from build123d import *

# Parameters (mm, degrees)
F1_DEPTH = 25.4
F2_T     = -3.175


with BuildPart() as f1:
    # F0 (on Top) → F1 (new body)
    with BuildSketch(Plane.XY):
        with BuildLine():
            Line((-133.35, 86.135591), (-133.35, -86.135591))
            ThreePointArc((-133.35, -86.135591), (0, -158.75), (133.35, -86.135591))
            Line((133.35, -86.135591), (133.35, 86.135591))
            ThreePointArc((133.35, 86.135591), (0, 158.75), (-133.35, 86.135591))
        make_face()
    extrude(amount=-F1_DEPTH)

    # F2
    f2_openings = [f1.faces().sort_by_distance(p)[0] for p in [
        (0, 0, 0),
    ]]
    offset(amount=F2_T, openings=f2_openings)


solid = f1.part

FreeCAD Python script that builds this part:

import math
import FreeCAD as App
import Part
import Sketcher
from FreeCAD import Vector
Q = App.Units.Quantity


def faces_at(feature, points):
    """Names of the faces that lie closest to the given points."""
    faces = feature.Shape.Faces
    near = lambda p: min(range(len(faces)), key=lambda i: faces[i].distToShape(Part.Vertex(*p))[0])
    return sorted({f"Face{near(p) + 1}" for p in points})

doc = App.newDocument("Part")
body = doc.addObject("PartDesign::Body", "Body")

# Sketch on XY plane
sketch1 = doc.addObject("Sketcher::SketchObject", "Sketch")
body.addObject(sketch1)
sketch1.AttachmentSupport = (doc.XY_Plane, [""])
sketch1.MapMode = "FlatFace"
sketch1.addGeometry(Part.LineSegment(Vector(-133.35, 86.135591, 0), Vector(-133.35, -86.135591, 0)), False)
sketch1.addGeometry(Part.ArcOfCircle(Part.Circle(Vector(0, 0, 0), Vector(0, 0, 1), 158.75), math.radians(-147.140119), math.radians(-32.859881)), False)
sketch1.addGeometry(Part.LineSegment(Vector(133.35, -86.135591, 0), Vector(133.35, 86.135591, 0)), False)
sketch1.addGeometry(Part.ArcOfCircle(Part.Circle(Vector(0, 0, 0), Vector(0, 0, 1), 158.75), math.radians(32.859881), math.radians(147.140119)), False)
sketch1.addConstraint(Sketcher.Constraint("Coincident", 0, 2, 1, 1))
sketch1.addConstraint(Sketcher.Constraint("Coincident", 1, 2, 2, 1))
sketch1.addConstraint(Sketcher.Constraint("Coincident", 2, 2, 3, 1))
sketch1.addConstraint(Sketcher.Constraint("Coincident", 3, 2, 0, 1))
sketch1.addConstraint(Sketcher.Constraint("Vertical", 0))
sketch1.addConstraint(Sketcher.Constraint("Vertical", 2))
sketch1.addConstraint(Sketcher.Constraint("Coincident", 1, 3, -1, 1))
sketch1.addConstraint(Sketcher.Constraint("Coincident", 3, 3, -1, 1))
sketch1.addConstraint(Sketcher.Constraint("Equal", 1, 3))
sketch1.addConstraint(Sketcher.Constraint("Horizontal", 0, 2, 1, 2))
sketch1.addConstraint(Sketcher.Constraint("Radius", 1, Q("6.25 in")))
sketch1.addConstraint(Sketcher.Constraint("DistanceX", 0, 2, 1, 2, Q("10.5 in")))
pad1 = doc.addObject("PartDesign::Pad", "Pad")
body.addObject(pad1)
pad1.Profile = sketch1
pad1.Length = Q("1 in")
pad1.Reversed = True
doc.recompute()

thickness = doc.addObject("PartDesign::Thickness", "Thickness")
body.addObject(thickness)
thickness.Base = (pad1, faces_at(pad1, [(0, 0, 0)]))
thickness.Value = Q("0.125 in")
thickness.Reversed = True
thickness.Join = "Arc"

doc.recompute()
